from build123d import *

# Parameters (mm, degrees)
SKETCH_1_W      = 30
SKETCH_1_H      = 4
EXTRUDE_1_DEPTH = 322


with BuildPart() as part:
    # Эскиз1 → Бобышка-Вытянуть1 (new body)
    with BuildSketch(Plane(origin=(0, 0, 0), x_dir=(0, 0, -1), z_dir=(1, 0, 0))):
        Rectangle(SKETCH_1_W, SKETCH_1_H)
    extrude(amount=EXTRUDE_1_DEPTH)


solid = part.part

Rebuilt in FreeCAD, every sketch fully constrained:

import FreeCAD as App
import Part
import Sketcher
from FreeCAD import Vector
Q = App.Units.Quantity


def add_polygon(sketch, points):
    """Adds a closed chain of lines whose ends are joined by coincident constraints."""
    first, n = sketch.GeometryCount, len(points)
    for a, b in zip(points, points[1:] + points[:1]):
        sketch.addGeometry(Part.LineSegment(App.Vector(*a, 0), App.Vector(*b, 0)), False)
    for i in range(n):
        sketch.addConstraint(Sketcher.Constraint("Coincident", first + i, 2, first + (i + 1) % n, 1))

doc = App.newDocument("Part")
body = doc.addObject("PartDesign::Body", "Body")

# Sketch on YZ plane
sketch1 = body.newObject("Sketcher::SketchObject", "Sketch")
sketch1.AttachmentSupport = (doc.getObject("YZ_Plane"), [""])
sketch1.MapMode = "FlatFace"
add_polygon(sketch1, [(2, 15), (-2, 15), (-2, -15), (2, -15)])  # lines 0-3
sketch1.addConstraint([
    Sketcher.Constraint("Horizontal", 0),
    Sketcher.Constraint("Vertical", 1),
    Sketcher.Constraint("Horizontal", 2),
    Sketcher.Constraint("Vertical", 3),
    Sketcher.Constraint("Symmetric", 0, 2, 2, 2, -1, 1),
    Sketcher.Constraint("DistanceX", 0, 2, 0, 1, Q("4 mm")),
    Sketcher.Constraint("DistanceY", 1, 2, 1, 1, Q("30 mm")),
])
pad1 = body.newObject("PartDesign::Pad", "Pad")
pad1.Profile = sketch1
pad1.Length = 322

doc.recompute()
